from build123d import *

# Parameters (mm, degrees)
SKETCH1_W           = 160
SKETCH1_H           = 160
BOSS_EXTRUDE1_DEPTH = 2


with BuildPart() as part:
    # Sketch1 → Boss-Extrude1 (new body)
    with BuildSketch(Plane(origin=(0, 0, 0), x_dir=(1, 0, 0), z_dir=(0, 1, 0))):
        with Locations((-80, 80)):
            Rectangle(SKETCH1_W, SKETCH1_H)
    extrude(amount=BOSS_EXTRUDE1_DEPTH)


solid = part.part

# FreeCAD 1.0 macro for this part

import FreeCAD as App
import Part
import Sketcher
from FreeCAD import Vector

doc = App.newDocument("Part")
body = doc.addObject("PartDesign::Body", "Body")

# Sketch on XZ plane
sketch1 = body.newObject("Sketcher::SketchObject", "Sketch")
sketch1.AttachmentSupport = (doc.getObject("XZ_Plane"), [""])
sketch1.MapMode = "FlatFace"
sketch1.addGeometry([
    Part.LineSegment(Vector(-160, -160, 0), Vector(-160, 0, 0)),
    Part.LineSegment(Vector(-160, 0, 0), Vector(0, 0, 0)),
    Part.LineSegment(Vector(0, 0, 0), Vector(0, -160, 0)),
    Part.LineSegment(Vector(0, -160, 0), Vector(-160, -160, 0)),
], False)
sketch1.addConstraint([
    Sketcher.Constraint("Coincident", 0, 2, 1, 1),
    Sketcher.Constraint("Coincident", 1, 2, 2, 1),
    Sketcher.Constraint("Coincident", 2, 2, 3, 1),
    Sketcher.Constraint("Coincident", 3, 2, 0, 1),
    Sketcher.Constraint("Vertical", 0),
    Sketcher.Constraint("Horizontal", 1),
    Sketcher.Constraint("Vertical", 2),
    Sketcher.Constraint("Horizontal", 3),
    Sketcher.Constraint("Coincident", 1, 2, -1, 1),
    Sketcher.Constraint("Equal", 3, 0),
    Sketcher.Constraint("DistanceX", 1, 1, 1, 2, 160.0),
])
pad1 = body.newObject("PartDesign::Pad", "Pad")
pad1.Profile = sketch1
pad1.Length = 2
pad1.Reversed = True

doc.recompute()
